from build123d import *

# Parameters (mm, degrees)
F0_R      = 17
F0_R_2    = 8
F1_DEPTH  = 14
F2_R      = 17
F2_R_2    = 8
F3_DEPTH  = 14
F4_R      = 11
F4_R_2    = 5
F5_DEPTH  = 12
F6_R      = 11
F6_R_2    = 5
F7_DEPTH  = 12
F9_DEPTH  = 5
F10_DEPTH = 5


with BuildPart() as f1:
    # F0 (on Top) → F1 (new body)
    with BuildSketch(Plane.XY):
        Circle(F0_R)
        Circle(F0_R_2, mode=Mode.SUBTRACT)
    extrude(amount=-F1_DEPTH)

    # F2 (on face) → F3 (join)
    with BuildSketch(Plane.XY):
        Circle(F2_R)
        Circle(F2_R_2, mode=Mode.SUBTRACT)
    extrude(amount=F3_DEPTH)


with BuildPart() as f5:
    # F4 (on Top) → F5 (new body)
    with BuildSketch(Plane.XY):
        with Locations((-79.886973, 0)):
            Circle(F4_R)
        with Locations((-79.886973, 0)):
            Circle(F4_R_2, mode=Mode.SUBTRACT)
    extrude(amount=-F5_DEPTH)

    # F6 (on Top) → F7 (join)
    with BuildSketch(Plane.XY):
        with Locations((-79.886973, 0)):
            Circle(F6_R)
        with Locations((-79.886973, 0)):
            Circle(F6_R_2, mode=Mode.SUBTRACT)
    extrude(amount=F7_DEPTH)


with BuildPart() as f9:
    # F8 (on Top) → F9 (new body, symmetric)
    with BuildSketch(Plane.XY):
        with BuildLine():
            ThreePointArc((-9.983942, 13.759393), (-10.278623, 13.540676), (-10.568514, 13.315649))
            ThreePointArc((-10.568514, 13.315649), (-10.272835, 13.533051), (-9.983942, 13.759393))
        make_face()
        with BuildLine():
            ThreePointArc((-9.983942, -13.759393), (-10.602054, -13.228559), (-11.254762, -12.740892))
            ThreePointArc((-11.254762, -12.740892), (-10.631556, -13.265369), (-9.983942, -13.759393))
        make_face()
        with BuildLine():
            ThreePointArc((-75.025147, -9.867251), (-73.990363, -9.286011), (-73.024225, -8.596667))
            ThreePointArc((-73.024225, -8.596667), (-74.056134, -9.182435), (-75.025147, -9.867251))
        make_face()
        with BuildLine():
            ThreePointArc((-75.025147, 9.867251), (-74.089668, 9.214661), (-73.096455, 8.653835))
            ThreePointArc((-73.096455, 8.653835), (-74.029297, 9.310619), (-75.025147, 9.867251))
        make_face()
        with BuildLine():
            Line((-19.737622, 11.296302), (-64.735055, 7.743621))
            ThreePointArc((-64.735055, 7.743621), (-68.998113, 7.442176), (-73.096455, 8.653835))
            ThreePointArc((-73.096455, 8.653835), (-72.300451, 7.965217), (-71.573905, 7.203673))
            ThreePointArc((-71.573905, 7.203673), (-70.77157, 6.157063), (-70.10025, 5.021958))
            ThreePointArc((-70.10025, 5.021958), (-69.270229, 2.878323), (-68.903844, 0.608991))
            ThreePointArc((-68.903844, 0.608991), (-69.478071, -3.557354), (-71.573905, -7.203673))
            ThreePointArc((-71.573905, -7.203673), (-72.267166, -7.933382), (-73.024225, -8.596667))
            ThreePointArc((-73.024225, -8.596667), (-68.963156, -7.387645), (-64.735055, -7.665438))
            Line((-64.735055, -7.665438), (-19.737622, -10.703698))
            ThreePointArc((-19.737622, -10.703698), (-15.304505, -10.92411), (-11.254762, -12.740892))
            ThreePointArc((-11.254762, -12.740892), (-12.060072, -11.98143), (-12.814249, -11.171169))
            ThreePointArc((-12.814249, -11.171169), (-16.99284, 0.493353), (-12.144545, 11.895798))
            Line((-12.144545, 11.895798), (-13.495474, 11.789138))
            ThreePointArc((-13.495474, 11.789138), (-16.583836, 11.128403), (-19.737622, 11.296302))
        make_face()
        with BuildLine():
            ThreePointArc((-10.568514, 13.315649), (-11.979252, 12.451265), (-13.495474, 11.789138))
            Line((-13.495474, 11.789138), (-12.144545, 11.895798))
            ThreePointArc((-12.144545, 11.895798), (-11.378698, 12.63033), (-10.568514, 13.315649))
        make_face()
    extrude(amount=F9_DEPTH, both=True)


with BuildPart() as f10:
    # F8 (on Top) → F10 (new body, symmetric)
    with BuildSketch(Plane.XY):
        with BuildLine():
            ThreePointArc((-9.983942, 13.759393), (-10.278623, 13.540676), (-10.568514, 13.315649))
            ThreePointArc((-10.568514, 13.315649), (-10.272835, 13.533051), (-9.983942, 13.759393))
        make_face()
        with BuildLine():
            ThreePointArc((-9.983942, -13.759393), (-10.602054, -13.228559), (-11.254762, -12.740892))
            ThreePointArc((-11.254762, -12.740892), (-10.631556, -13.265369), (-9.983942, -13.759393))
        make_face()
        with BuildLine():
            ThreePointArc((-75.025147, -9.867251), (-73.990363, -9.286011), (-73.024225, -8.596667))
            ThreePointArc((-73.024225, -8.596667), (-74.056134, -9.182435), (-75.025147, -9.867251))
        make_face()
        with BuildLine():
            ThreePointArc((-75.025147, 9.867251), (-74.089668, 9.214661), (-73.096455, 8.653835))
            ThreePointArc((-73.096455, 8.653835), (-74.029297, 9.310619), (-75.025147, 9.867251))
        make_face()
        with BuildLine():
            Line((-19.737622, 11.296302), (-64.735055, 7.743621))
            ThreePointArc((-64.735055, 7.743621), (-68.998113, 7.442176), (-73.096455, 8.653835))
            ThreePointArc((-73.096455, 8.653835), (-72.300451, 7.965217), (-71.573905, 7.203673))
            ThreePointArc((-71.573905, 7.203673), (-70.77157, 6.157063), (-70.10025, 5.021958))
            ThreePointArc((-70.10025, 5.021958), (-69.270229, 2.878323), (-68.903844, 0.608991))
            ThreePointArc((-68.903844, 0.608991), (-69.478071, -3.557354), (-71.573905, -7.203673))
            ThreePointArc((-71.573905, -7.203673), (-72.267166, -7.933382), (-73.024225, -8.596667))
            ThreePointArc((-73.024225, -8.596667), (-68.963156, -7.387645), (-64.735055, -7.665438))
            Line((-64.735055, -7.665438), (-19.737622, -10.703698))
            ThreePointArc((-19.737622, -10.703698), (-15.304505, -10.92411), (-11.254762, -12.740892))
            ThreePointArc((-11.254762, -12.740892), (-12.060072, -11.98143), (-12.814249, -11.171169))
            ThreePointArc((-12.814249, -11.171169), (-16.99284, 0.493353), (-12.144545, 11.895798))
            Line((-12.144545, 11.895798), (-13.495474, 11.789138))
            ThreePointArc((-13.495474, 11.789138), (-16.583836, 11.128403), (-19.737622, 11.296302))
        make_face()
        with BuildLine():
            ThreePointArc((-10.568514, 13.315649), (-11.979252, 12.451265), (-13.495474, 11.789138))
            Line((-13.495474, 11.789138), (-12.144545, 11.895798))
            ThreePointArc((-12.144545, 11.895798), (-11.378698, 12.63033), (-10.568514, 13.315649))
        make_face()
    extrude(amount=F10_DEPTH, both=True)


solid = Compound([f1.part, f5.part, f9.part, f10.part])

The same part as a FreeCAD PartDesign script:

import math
import FreeCAD as App
import Part
import Sketcher

doc = App.newDocument("Part")
params = doc.addObject("Spreadsheet::Sheet", "Params")
for row, (alias, value) in enumerate([
    ("sketch1_diameter", "34 mm"),
    ("sketch1_diameter2", "16 mm"),
    ("pad1_length", "14 mm"),
    ("sketch2_diameter", "34 mm"),
    ("sketch2_diameter2", "16 mm"),
    ("pad2_length", "14 mm"),
    ("sketch3_diameter", "22 mm"),
    ("sketch3_diameter2", "10 mm"),
    ("pad3_length", "12 mm"),
    ("sketch4_diameter", "22 mm"),
    ("sketch4_diameter2", "10 mm"),
    ("pad4_length", "12 mm"),
    ("sketch5_radius", "12.000002 mm"),
    ("sketch5_radius2", "16.999998 mm"),
    ("sketch5_radius3", "12.000001 mm"),
    ("pad5_length", "10 mm"),
    ("sketch6_radius", "12.000002 mm"),
    ("sketch6_radius2", "16.999998 mm"),
    ("sketch6_radius3", "12.000001 mm"),
    ("pad6_length", "10 mm"),
], start=1):
    params.set(f"A{row}", alias)
    params.set(f"B{row}", "=" + value)
    params.setAlias(f"B{row}", alias)

body = doc.addObject("PartDesign::Body", "Body")

sketch1 = body.newObject("Sketcher::SketchObject", "Sketch")
sketch1.AttachmentSupport = (doc.getObject("XY_Plane"), [""])
sketch1.MapMode = "FlatFace"
sketch1.addGeometry([
    Part.Circle(App.Vector(0, 0, 0), App.Vector(0, 0, 1), 17),
    Part.Circle(App.Vector(0, 0, 0), App.Vector(0, 0, 1), 8),
], False)
sketch1.addConstraint([
    Sketcher.Constraint("Coincident", 0, 3, -1, 1),
    Sketcher.Constraint("Coincident", 1, 3, -1, 1),
    Sketcher.Constraint("Diameter", 0, 34.0),
    Sketcher.Constraint("Diameter", 1, 16.0),
])
sketch1.setExpression("Constraints[2]", "Params.sketch1_diameter")
sketch1.setExpression("Constraints[3]", "Params.sketch1_diameter2")
pad1 = body.newObject("PartDesign::Pad", "Pad")
pad1.Profile = sketch1
pad1.setExpression("Length", "Params.pad1_length")
pad1.Reversed = True

sketch2 = body.newObject("Sketcher::SketchObject", "Sketch001")
sketch2.AttachmentSupport = (doc.getObject("XY_Plane"), [""])
sketch2.MapMode = "FlatFace"
sketch2.addGeometry([
    Part.Circle(App.Vector(0, 0, 0), App.Vector(0, 0, 1), 17),
    Part.Circle(App.Vector(0, 0, 0), App.Vector(0, 0, 1), 8),
], False)
sketch2.addConstraint([
    Sketcher.Constraint("Coincident", 0, 3, -1, 1),
    Sketcher.Constraint("Coincident", 1, 3, -1, 1),
    Sketcher.Constraint("Diameter", 0, 34.0),
    Sketcher.Constraint("Diameter", 1, 16.0),
])
sketch2.setExpression("Constraints[2]", "Params.sketch2_diameter")
sketch2.setExpression("Constraints[3]", "Params.sketch2_diameter2")
pad2 = body.newObject("PartDesign::Pad", "Pad001")
pad2.Profile = sketch2
pad2.setExpression("Length", "Params.pad2_length")
body2 = doc.addObject("PartDesign::Body", "Body001")

sketch3 = body2.newObject("Sketcher::SketchObject", "Sketch002")
sketch3.AttachmentSupport = (doc.getObject("XY_Plane001"), [""])
sketch3.MapMode = "FlatFace"
sketch3.addGeometry([
    Part.Circle(App.Vector(-80, 0, 0), App.Vector(0, 0, 1), 11),
    Part.Circle(App.Vector(-80, 0, 0), App.Vector(0, 0, 1), 5),
], False)
sketch3.addConstraint([
    Sketcher.Constraint("Coincident", 1, 3, 0, 3),
    Sketcher.Constraint("PointOnObject", 0, 3, -1),
    Sketcher.Constraint("Diameter", 0, 22.0),
    Sketcher.Constraint("Diameter", 1, 10.0),
    Sketcher.Constraint("DistanceX", 0, 3, -1, 1, 79.886973),
])
sketch3.setExpression("Constraints[2]", "Params.sketch3_diameter")
sketch3.setExpression("Constraints[3]", "Params.sketch3_diameter2")
pad3 = body2.newObject("PartDesign::Pad", "Pad002")
pad3.Profile = sketch3
pad3.setExpression("Length", "Params.pad3_length")
pad3.Reversed = True

sketch4 = body2.newObject("Sketcher::SketchObject", "Sketch003")
sketch4.AttachmentSupport = (doc.getObject("XY_Plane001"), [""])
sketch4.MapMode = "FlatFace"
sketch4.addGeometry([
    Part.Circle(App.Vector(-80, 0, 0), App.Vector(0, 0, 1), 11),
    Part.Circle(App.Vector(-80, 0, 0), App.Vector(0, 0, 1), 5),
], False)
sketch4.addConstraint([
    Sketcher.Constraint("Coincident", 1, 3, 0, 3),
    Sketcher.Constraint("PointOnObject", 0, 3, -1),
    Sketcher.Constraint("Diameter", 0, 22.0),
    Sketcher.Constraint("Diameter", 1, 10.0),
    Sketcher.Constraint("DistanceX", 0, 3, -1, 1, 79.886973),
])
sketch4.setExpression("Constraints[2]", "Params.sketch4_diameter")
sketch4.setExpression("Constraints[3]", "Params.sketch4_diameter2")
pad4 = body2.newObject("PartDesign::Pad", "Pad003")
pad4.Profile = sketch4
pad4.setExpression("Length", "Params.pad4_length")
body3 = doc.addObject("PartDesign::Body", "Body002")
body3.AllowCompound = True

sketch5 = body3.newObject("Sketcher::SketchObject", "Sketch004")
sketch5.AttachmentSupport = (doc.getObject("XY_Plane002"), [""])
sketch5.MapMode = "FlatFace"
sketch5.addGeometry([
    Part.ArcOfCircle(Part.Circle(App.Vector(-0.000176, 0.000229, 0), App.Vector(0, 0, 1), 16.999711), math.radians(125.964956), math.radians(128.438738)),
    Part.ArcOfCircle(Part.Circle(App.Vector(-17.528566, 23.091484, 0), App.Vector(0, 0, 1), 12.000387), math.radians(-54.550466), math.radians(-51.04584)),
    Part.ArcOfCircle(Part.Circle(App.Vector(-18.106796, -22.592493, 0), App.Vector(0, 0, 1), 12.000184), math.radians(47.398587), math.radians(55.180425)),
    Part.ArcOfCircle(Part.Circle(App.Vector(-0.000042, -0.000051, 0), App.Vector(0, 0, 1), 16.999934), math.radians(-131.456018), math.radians(-125.96497)),
    Part.ArcOfCircle(Part.Circle(App.Vector(-79.886907, -0.000104, 0), App.Vector(0, 0, 1), 10.999877), math.radians(-63.769519), math.radians(-51.399446)),
    Part.ArcOfCircle(Part.Circle(App.Vector(-67.623489, -19.312595, 0), App.Vector(0, 0, 1), 11.999961), math.radians(116.747711), math.radians(128.083324)),
    Part.ArcOfCircle(Part.Circle(App.Vector(-67.699404, 19.371812, 0), App.Vector(0, 0, 1), 12.000133), math.radians(-127.623627), math.radians(-116.727598)),
    Part.ArcOfCircle(Part.Circle(App.Vector(-79.886974, -0.000003, 0), App.Vector(0, 0, 1), 11.000003), math.radians(51.879325), math.radians(63.76945)),
    Part.LineSegment(App.Vector(-19.737622, 11.296302, 0), App.Vector(-64.735055, 7.743621, 0)),
    Part.ArcOfCircle(Part.Circle(App.Vector(-67.699475, 19.371708, 0), App.Vector(0, 0, 1), 12.000008), math.radians(-116.727519), math.radians(-75.697881)),
    Part.ArcOfCircle(Part.Circle(App.Vector(-79.886983, -0.000014, 0), App.Vector(0, 0, 1), 11.000017), math.radians(40.910522), math.radians(51.879326)),
    Part.ArcOfCircle(Part.Circle(App.Vector(-79.887025, -0.000037, 0), App.Vector(0, 0, 1), 11.000064), math.radians(27.164213), math.radians(40.910467)),
    Part.ArcOfCircle(Part.Circle(App.Vector(-79.886983, -0.000001, 0), App.Vector(0, 0, 1), 11.000009), math.radians(3.173679), math.radians(27.164149)),
    Part.ArcOfCircle(Part.Circle(App.Vector(-79.886967, -0.000003, 0), App.Vector(0, 0, 1), 10.999994), math.radians(-40.910511), math.radians(3.173694)),
    Part.ArcOfCircle(Part.Circle(App.Vector(-79.886898, -0.000074, 0), App.Vector(0, 0, 1), 10.999895), math.radians(-51.39958), math.radians(-40.910466)),
    Part.ArcOfCircle(Part.Circle(App.Vector(-67.62347, -19.312626, 0), App.Vector(0, 0, 1), 11.999997), math.radians(76.072064), math.radians(116.747727)),
    Part.LineSegment(App.Vector(-64.735055, -7.665438, 0), App.Vector(-19.737622, -10.703698, 0)),
    Part.ArcOfCircle(Part.Circle(App.Vector(-18.106681, -22.592351, 0), App.Vector(0, 0, 1), 12.000002), math.radians(55.180488), math.radians(97.811344)),
    Part.ArcOfCircle(Part.Circle(App.Vector(-0.000059, -0.000059, 0), App.Vector(0, 0, 1), 16.999916), math.radians(-138.918847), math.radians(-131.455993)),
    Part.ArcOfCircle(Part.Circle(App.Vector(-0.000002, 0, 0), App.Vector(0, 0, 1), 16.999998), math.radians(135.592816), math.radians(221.081177)),
    Part.ArcOfCircle(Part.Circle(App.Vector(-0.000141, 0.000161, 0), App.Vector(0, 0, 1), 16.999786), math.radians(128.438689), math.radians(135.592878)),
    Part.ArcOfCircle(Part.Circle(App.Vector(-17.528345, 23.091197, 0), App.Vector(0, 0, 1), 12.000025), math.radians(-70.362267), math.radians(-54.550531)),
    Part.ArcOfCircle(Part.Circle(App.Vector(-17.528333, 23.091176, 0), App.Vector(0, 0, 1), 12.000001), math.radians(-100.609098), math.radians(-70.362289)),
], False)
sketch5.addConstraint([
    Sketcher.Constraint("Coincident", 0, 1, 1, 2),
    Sketcher.Constraint("Coincident", 1, 1, 0, 2),
    Sketcher.Constraint("Coincident", 2, 1, 3, 2),
    Sketcher.Constraint("Coincident", 3, 1, 2, 2),
    Sketcher.Constraint("Coincident", 4, 1, 5, 2),
    Sketcher.Constraint("Coincident", 5, 1, 4, 2),
    Sketcher.Constraint("Coincident", 6, 1, 7, 2),
    Sketcher.Constraint("Coincident", 7, 1, 6, 2),
    Sketcher.Constraint("Coincident", 8, 2, 9, 2),
    Sketcher.Constraint("Coincident", 9, 1, 10, 2),
    Sketcher.Constraint("Coincident", 10, 1, 11, 2),
    Sketcher.Constraint("Coincident", 11, 1, 12, 2),
    Sketcher.Constraint("Coincident", 12, 1, 13, 2),
    Sketcher.Constraint("Coincident", 13, 1, 14, 2),
    Sketcher.Constraint("Coincident", 14, 1, 15, 2),
    Sketcher.Constraint("Coincident", 15, 1, 16, 1),
    Sketcher.Constraint("Coincident", 16, 2, 17, 2),
    Sketcher.Constraint("Coincident", 17, 1, 18, 2),
    Sketcher.Constraint("Coincident", 18, 1, 19, 2),
    Sketcher.Constraint("Coincident", 19, 1, 20, 2),
    Sketcher.Constraint("Coincident", 20, 1, 21, 2),
    Sketcher.Constraint("Coincident", 21, 1, 22, 2),
    Sketcher.Constraint("Coincident", 22, 1, 8, 1),
    Sketcher.Constraint("Coincident", 19, 3, -1, 1),
    Sketcher.Constraint("Coincident", 12, 3, 7, 3),
    Sketcher.Constraint("Coincident", 13, 3, 7, 3),
    Sketcher.Constraint("Coincident", 9, 1, 7, 1),
    Sketcher.Constraint("Coincident", 14, 1, 5, 1),
    Sketcher.Constraint("Coincident", 17, 1, 3, 1),
    Sketcher.Constraint("Coincident", 20, 1, 1, 1),
    Sketcher.Constraint("PointOnObject", 12, 3, -1),
    Sketcher.Constraint("Radius", 17, 12.000002),
    Sketcher.Constraint("Radius", 19, 16.999998),
    Sketcher.Constraint("Radius", 22, 12.000001),
    Sketcher.Constraint("Radius", 0, 16.999711),
    Sketcher.Constraint("Radius", 5, 11.999961),
    Sketcher.Constraint("Radius", 12, 11.000009),
    Sketcher.Constraint("Radius", 1, 12.000387),
    Sketcher.Constraint("Radius", 2, 12.000184),
    Sketcher.Constraint("Radius", 3, 16.999934),
    Sketcher.Constraint("Radius", 4, 10.999877),
    Sketcher.Constraint("Radius", 6, 12.000133),
    Sketcher.Constraint("Radius", 7, 11.000003),
    Sketcher.Constraint("Radius", 9, 12.000008),
    Sketcher.Constraint("Radius", 10, 11.000017),
    Sketcher.Constraint("Radius", 11, 11.000064),
    Sketcher.Constraint("Radius", 14, 10.999895),
    Sketcher.Constraint("Radius", 15, 11.999997),
    Sketcher.Constraint("Radius", 18, 16.999916),
    Sketcher.Constraint("Radius", 20, 16.999786),
    Sketcher.Constraint("Radius", 21, 12.000025),
    Sketcher.Constraint("DistanceX", 4, 3, 13, 1, 8.313002),
    Sketcher.Constraint("DistanceY", -1, 1, 22, 1, 11.296302),
    Sketcher.Constraint("DistanceY", 4, 3, 7, 3, 0.000102),
    Sketcher.Constraint("DistanceX", 7, 3, 9, 3, 12.187499),
    Sketcher.Constraint("DistanceY", 17, 3, 3, 3, 22.5923),
    Sketcher.Constraint("DistanceX", 0, 1, 20, 3, 9.983801),
    Sketcher.Constraint("DistanceY", 2, 3, 2, 1, 8.8331),
    Sketcher.Constraint("DistanceX", 2, 1, 3, 3, 9.9839),
    Sketcher.Constraint("DistanceX", 7, 1, 8, 2, 8.3614),
    Sketcher.Constraint("DistanceY", 13, 1, 14, 3, 7.203599),
    Sketcher.Constraint("DistanceX", 21, 3, 19, 1, 5.3838),
    Sketcher.Constraint("DistanceY", 19, 1, 21, 3, 11.195399),
    Sketcher.Constraint("Distance", 16, 45.099889),
    Sketcher.Constraint("DistanceY", -1, 1, 0, 3, 0.000229),
    Sketcher.Constraint("DistanceX", 5, 3, -1, 1, 67.623489),
    Sketcher.Constraint("DistanceY", -1, 1, 6, 3, 19.371812),
    Sketcher.Constraint("DistanceX", 15, 3, -1, 1, 67.62347),
    Sketcher.Constraint("DistanceX", 17, 3, -1, 1, 18.106681),
    Sketcher.Constraint("DistanceY", 17, 3, -1, 1, 22.592351),
    Sketcher.Constraint("DistanceX", 20, 3, -1, 1, 0.000141),
    Sketcher.Constraint("DistanceY", -1, 1, 1, 1, 13.315649),
    Sketcher.Constraint("DistanceY", 4, 1, -1, 1, 9.867251),
    Sketcher.Constraint("DistanceY", -1, 1, 6, 1, 9.867251),
    Sketcher.Constraint("DistanceX", 11, 1, -1, 1, 70.10025),
    Sketcher.Constraint("DistanceY", -1, 1, 11, 1, 5.021958),
    Sketcher.Constraint("DistanceY", -1, 1, 12, 1, 0.608991),
    Sketcher.Constraint("DistanceY", 15, 1, -1, 1, 7.665438),
    Sketcher.Constraint("DistanceX", 18, 1, -1, 1, 12.814249),
    Sketcher.Constraint("DistanceY", 5, 3, 10, 3, 19.312582),
    Sketcher.Constraint("DistanceX", 22, 3, 20, 3, 17.528192),
    Sketcher.Constraint("DistanceX", 7, 1, 10, 1, 1.52255),
    Sketcher.Constraint("DistanceX", 21, 1, 19, 1, 1.350929),
])
sketch5.setExpression("Constraints[31]", "Params.sketch5_radius")
sketch5.setExpression("Constraints[32]", "Params.sketch5_radius2")
sketch5.setExpression("Constraints[33]", "Params.sketch5_radius3")
pad5 = body3.newObject("PartDesign::Pad", "Pad004")
pad5.Profile = sketch5
pad5.setExpression("Length", "Params.pad5_length")
pad5.Midplane = True
body4 = doc.addObject("PartDesign::Body", "Body003")
body4.AllowCompound = True

sketch6 = body4.newObject("Sketcher::SketchObject", "Sketch005")
sketch6.AttachmentSupport = (doc.getObject("XY_Plane003"), [""])
sketch6.MapMode = "FlatFace"
sketch6.addGeometry([
    Part.ArcOfCircle(Part.Circle(App.Vector(-0.000176, 0.000229, 0), App.Vector(0, 0, 1), 16.999711), math.radians(125.964956), math.radians(128.438738)),
    Part.ArcOfCircle(Part.Circle(App.Vector(-17.528566, 23.091484, 0), App.Vector(0, 0, 1), 12.000387), math.radians(-54.550466), math.radians(-51.04584)),
    Part.ArcOfCircle(Part.Circle(App.Vector(-18.106796, -22.592493, 0), App.Vector(0, 0, 1), 12.000184), math.radians(47.398587), math.radians(55.180425)),
    Part.ArcOfCircle(Part.Circle(App.Vector(-0.000042, -0.000051, 0), App.Vector(0, 0, 1), 16.999934), math.radians(-131.456018), math.radians(-125.96497)),
    Part.ArcOfCircle(Part.Circle(App.Vector(-79.886907, -0.000104, 0), App.Vector(0, 0, 1), 10.999877), math.radians(-63.769519), math.radians(-51.399446)),
    Part.ArcOfCircle(Part.Circle(App.Vector(-67.623489, -19.312595, 0), App.Vector(0, 0, 1), 11.999961), math.radians(116.747711), math.radians(128.083324)),
    Part.ArcOfCircle(Part.Circle(App.Vector(-67.699404, 19.371812, 0), App.Vector(0, 0, 1), 12.000133), math.radians(-127.623627), math.radians(-116.727598)),
    Part.ArcOfCircle(Part.Circle(App.Vector(-79.886974, -0.000003, 0), App.Vector(0, 0, 1), 11.000003), math.radians(51.879325), math.radians(63.76945)),
    Part.LineSegment(App.Vector(-19.737622, 11.296302, 0), App.Vector(-64.735055, 7.743621, 0)),
    Part.ArcOfCircle(Part.Circle(App.Vector(-67.699475, 19.371708, 0), App.Vector(0, 0, 1), 12.000008), math.radians(-116.727519), math.radians(-75.697881)),
    Part.ArcOfCircle(Part.Circle(App.Vector(-79.886983, -0.000014, 0), App.Vector(0, 0, 1), 11.000017), math.radians(40.910522), math.radians(51.879326)),
    Part.ArcOfCircle(Part.Circle(App.Vector(-79.887025, -0.000037, 0), App.Vector(0, 0, 1), 11.000064), math.radians(27.164213), math.radians(40.910467)),
    Part.ArcOfCircle(Part.Circle(App.Vector(-79.886983, -0.000001, 0), App.Vector(0, 0, 1), 11.000009), math.radians(3.173679), math.radians(27.164149)),
    Part.ArcOfCircle(Part.Circle(App.Vector(-79.886967, -0.000003, 0), App.Vector(0, 0, 1), 10.999994), math.radians(-40.910511), math.radians(3.173694)),
    Part.ArcOfCircle(Part.Circle(App.Vector(-79.886898, -0.000074, 0), App.Vector(0, 0, 1), 10.999895), math.radians(-51.39958), math.radians(-40.910466)),
    Part.ArcOfCircle(Part.Circle(App.Vector(-67.62347, -19.312626, 0), App.Vector(0, 0, 1), 11.999997), math.radians(76.072064), math.radians(116.747727)),
    Part.LineSegment(App.Vector(-64.735055, -7.665438, 0), App.Vector(-19.737622, -10.703698, 0)),
    Part.ArcOfCircle(Part.Circle(App.Vector(-18.106681, -22.592351, 0), App.Vector(0, 0, 1), 12.000002), math.radians(55.180488), math.radians(97.811344)),
    Part.ArcOfCircle(Part.Circle(App.Vector(-0.000059, -0.000059, 0), App.Vector(0, 0, 1), 16.999916), math.radians(-138.918847), math.radians(-131.455993)),
    Part.ArcOfCircle(Part.Circle(App.Vector(-0.000002, 0, 0), App.Vector(0, 0, 1), 16.999998), math.radians(135.592816), math.radians(221.081177)),
    Part.ArcOfCircle(Part.Circle(App.Vector(-0.000141, 0.000161, 0), App.Vector(0, 0, 1), 16.999786), math.radians(128.438689), math.radians(135.592878)),
    Part.ArcOfCircle(Part.Circle(App.Vector(-17.528345, 23.091197, 0), App.Vector(0, 0, 1), 12.000025), math.radians(-70.362267), math.radians(-54.550531)),
    Part.ArcOfCircle(Part.Circle(App.Vector(-17.528333, 23.091176, 0), App.Vector(0, 0, 1), 12.000001), math.radians(-100.609098), math.radians(-70.362289)),
], False)
sketch6.addConstraint([
    Sketcher.Constraint("Coincident", 0, 1, 1, 2),
    Sketcher.Constraint("Coincident", 1, 1, 0, 2),
    Sketcher.Constraint("Coincident", 2, 1, 3, 2),
    Sketcher.Constraint("Coincident", 3, 1, 2, 2),
    Sketcher.Constraint("Coincident", 4, 1, 5, 2),
    Sketcher.Constraint("Coincident", 5, 1, 4, 2),
    Sketcher.Constraint("Coincident", 6, 1, 7, 2),
    Sketcher.Constraint("Coincident", 7, 1, 6, 2),
    Sketcher.Constraint("Coincident", 8, 2, 9, 2),
    Sketcher.Constraint("Coincident", 9, 1, 10, 2),
    Sketcher.Constraint("Coincident", 10, 1, 11, 2),
    Sketcher.Constraint("Coincident", 11, 1, 12, 2),
    Sketcher.Constraint("Coincident", 12, 1, 13, 2),
    Sketcher.Constraint("Coincident", 13, 1, 14, 2),
    Sketcher.Constraint("Coincident", 14, 1, 15, 2),
    Sketcher.Constraint("Coincident", 15, 1, 16, 1),
    Sketcher.Constraint("Coincident", 16, 2, 17, 2),
    Sketcher.Constraint("Coincident", 17, 1, 18, 2),
    Sketcher.Constraint("Coincident", 18, 1, 19, 2),
    Sketcher.Constraint("Coincident", 19, 1, 20, 2),
    Sketcher.Constraint("Coincident", 20, 1, 21, 2),
    Sketcher.Constraint("Coincident", 21, 1, 22, 2),
    Sketcher.Constraint("Coincident", 22, 1, 8, 1),
    Sketcher.Constraint("Coincident", 19, 3, -1, 1),
    Sketcher.Constraint("Coincident", 12, 3, 7, 3),
    Sketcher.Constraint("Coincident", 13, 3, 7, 3),
    Sketcher.Constraint("Coincident", 9, 1, 7, 1),
    Sketcher.Constraint("Coincident", 14, 1, 5, 1),
    Sketcher.Constraint("Coincident", 17, 1, 3, 1),
    Sketcher.Constraint("Coincident", 20, 1, 1, 1),
    Sketcher.Constraint("PointOnObject", 12, 3, -1),
    Sketcher.Constraint("Radius", 17, 12.000002),
    Sketcher.Constraint("Radius", 19, 16.999998),
    Sketcher.Constraint("Radius", 22, 12.000001),
    Sketcher.Constraint("Radius", 0, 16.999711),
    Sketcher.Constraint("Radius", 5, 11.999961),
    Sketcher.Constraint("Radius", 12, 11.000009),
    Sketcher.Constraint("Radius", 1, 12.000387),
    Sketcher.Constraint("Radius", 2, 12.000184),
    Sketcher.Constraint("Radius", 3, 16.999934),
    Sketcher.Constraint("Radius", 4, 10.999877),
    Sketcher.Constraint("Radius", 6, 12.000133),
    Sketcher.Constraint("Radius", 7, 11.000003),
    Sketcher.Constraint("Radius", 9, 12.000008),
    Sketcher.Constraint("Radius", 10, 11.000017),
    Sketcher.Constraint("Radius", 11, 11.000064),
    Sketcher.Constraint("Radius", 14, 10.999895),
    Sketcher.Constraint("Radius", 15, 11.999997),
    Sketcher.Constraint("Radius", 18, 16.999916),
    Sketcher.Constraint("Radius", 20, 16.999786),
    Sketcher.Constraint("Radius", 21, 12.000025),
    Sketcher.Constraint("DistanceX", 4, 3, 13, 1, 8.313002),
    Sketcher.Constraint("DistanceY", -1, 1, 22, 1, 11.296302),
    Sketcher.Constraint("DistanceY", 4, 3, 7, 3, 0.000102),
    Sketcher.Constraint("DistanceX", 7, 3, 9, 3, 12.187499),
    Sketcher.Constraint("DistanceY", 17, 3, 3, 3, 22.5923),
    Sketcher.Constraint("DistanceX", 0, 1, 20, 3, 9.983801),
    Sketcher.Constraint("DistanceY", 2, 3, 2, 1, 8.8331),
    Sketcher.Constraint("DistanceX", 2, 1, 3, 3, 9.9839),
    Sketcher.Constraint("DistanceX", 7, 1, 8, 2, 8.3614),
    Sketcher.Constraint("DistanceY", 13, 1, 14, 3, 7.203599),
    Sketcher.Constraint("DistanceX", 21, 3, 19, 1, 5.3838),
    Sketcher.Constraint("DistanceY", 19, 1, 21, 3, 11.195399),
    Sketcher.Constraint("Distance", 16, 45.099889),
    Sketcher.Constraint("DistanceY", -1, 1, 0, 3, 0.000229),
    Sketcher.Constraint("DistanceX", 5, 3, -1, 1, 67.623489),
    Sketcher.Constraint("DistanceY", -1, 1, 6, 3, 19.371812),
    Sketcher.Constraint("DistanceX", 15, 3, -1, 1, 67.62347),
    Sketcher.Constraint("DistanceX", 17, 3, -1, 1, 18.106681),
    Sketcher.Constraint("DistanceY", 17, 3, -1, 1, 22.592351),
    Sketcher.Constraint("DistanceX", 20, 3, -1, 1, 0.000141),
    Sketcher.Constraint("DistanceY", -1, 1, 1, 1, 13.315649),
    Sketcher.Constraint("DistanceY", 4, 1, -1, 1, 9.867251),
    Sketcher.Constraint("DistanceY", -1, 1, 6, 1, 9.867251),
    Sketcher.Constraint("DistanceX", 11, 1, -1, 1, 70.10025),
    Sketcher.Constraint("DistanceY", -1, 1, 11, 1, 5.021958),
    Sketcher.Constraint("DistanceY", -1, 1, 12, 1, 0.608991),
    Sketcher.Constraint("DistanceY", 15, 1, -1, 1, 7.665438),
    Sketcher.Constraint("DistanceX", 18, 1, -1, 1, 12.814249),
    Sketcher.Constraint("DistanceY", 5, 3, 10, 3, 19.312582),
    Sketcher.Constraint("DistanceX", 22, 3, 20, 3, 17.528192),
    Sketcher.Constraint("DistanceX", 7, 1, 10, 1, 1.52255),
    Sketcher.Constraint("DistanceX", 21, 1, 19, 1, 1.350929),
])
sketch6.setExpression("Constraints[31]", "Params.sketch6_radius")
sketch6.setExpression("Constraints[32]", "Params.sketch6_radius2")
sketch6.setExpression("Constraints[33]", "Params.sketch6_radius3")
pad6 = body4.newObject("PartDesign::Pad", "Pad005")
pad6.Profile = sketch6
pad6.setExpression("Length", "Params.pad6_length")
pad6.Midplane = True

doc.recompute()
